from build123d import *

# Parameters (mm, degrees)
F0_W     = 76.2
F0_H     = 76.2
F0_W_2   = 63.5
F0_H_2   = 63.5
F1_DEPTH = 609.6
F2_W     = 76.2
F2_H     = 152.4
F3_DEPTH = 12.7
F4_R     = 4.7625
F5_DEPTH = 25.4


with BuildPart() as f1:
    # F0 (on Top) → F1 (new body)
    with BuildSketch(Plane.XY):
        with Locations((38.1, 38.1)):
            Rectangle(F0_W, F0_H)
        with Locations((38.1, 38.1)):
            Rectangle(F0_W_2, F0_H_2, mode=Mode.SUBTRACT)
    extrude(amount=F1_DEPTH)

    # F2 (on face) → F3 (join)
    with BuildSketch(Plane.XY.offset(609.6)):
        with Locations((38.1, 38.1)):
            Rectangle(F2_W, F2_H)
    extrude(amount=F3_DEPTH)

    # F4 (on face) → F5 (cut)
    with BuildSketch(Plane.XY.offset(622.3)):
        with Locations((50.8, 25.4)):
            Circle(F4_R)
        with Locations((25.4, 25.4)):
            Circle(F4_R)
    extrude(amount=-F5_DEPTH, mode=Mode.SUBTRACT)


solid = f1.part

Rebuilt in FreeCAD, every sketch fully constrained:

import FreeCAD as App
import Part
import Sketcher

V = App.Vector
Q = App.Units.Quantity

doc = App.newDocument("Part")
body = doc.addObject("PartDesign::Body", "Body")

# Sketch on XY plane
sketch1 = body.newObject("Sketcher::SketchObject", "Sketch")
sketch1.AttachmentSupport = (doc.getObject("XY_Plane"), [""])
sketch1.MapMode = "FlatFace"
sketch1.addGeometry([
    Part.LineSegment(V(0, 76, 0), V(0, 0, 0)),  # 0
    Part.LineSegment(V(0, 0, 0), V(76, 0, 0)),  # 1
    Part.LineSegment(V(76, 0, 0), V(76, 76, 0)),  # 2
    Part.LineSegment(V(76, 76, 0), V(0, 76, 0)),  # 3
    Part.LineSegment(V(70, 6, 0), V(6, 6, 0)),  # 4
    Part.LineSegment(V(6, 6, 0), V(6, 70, 0)),  # 5
    Part.LineSegment(V(6, 70, 0), V(70, 70, 0)),  # 6
    Part.LineSegment(V(70, 70, 0), V(70, 6, 0)),  # 7
], False)
sketch1.addConstraint([
    Sketcher.Constraint("Coincident", 0, 2, 1, 1),
    Sketcher.Constraint("Coincident", 1, 2, 2, 1),
    Sketcher.Constraint("Coincident", 2, 2, 3, 1),
    Sketcher.Constraint("Coincident", 3, 2, 0, 1),
    Sketcher.Constraint("Coincident", 4, 2, 5, 1),
    Sketcher.Constraint("Coincident", 5, 2, 6, 1),
    Sketcher.Constraint("Coincident", 6, 2, 7, 1),
    Sketcher.Constraint("Coincident", 7, 2, 4, 1),
    Sketcher.Constraint("Vertical", 0),
    Sketcher.Constraint("Horizontal", 1),
    Sketcher.Constraint("Vertical", 2),
    Sketcher.Constraint("Horizontal", 3),
    Sketcher.Constraint("Horizontal", 4),
    Sketcher.Constraint("Vertical", 5),
    Sketcher.Constraint("Horizontal", 6),
    Sketcher.Constraint("Vertical", 7),
    Sketcher.Constraint("Coincident", 0, 2, -1, 1),
    Sketcher.Constraint("Equal", 3, 0),
    Sketcher.Constraint("Equal", 6, 5),
    Sketcher.Constraint("DistanceX", 1, 1, 1, 2, Q("3 in")),
    Sketcher.Constraint("DistanceX", 4, 2, 4, 1, Q("2.5 in")),
    Sketcher.Constraint("DistanceX", -1, 1, 4, 2, Q("0.25 in")),
    Sketcher.Constraint("DistanceY", -1, 1, 4, 2, Q("0.25 in")),
])
pad1 = body.newObject("PartDesign::Pad", "Pad")
pad1.Profile = sketch1
pad1.Length = Q("24 in")

# Sketch on XY plane
sketch2 = body.newObject("Sketcher::SketchObject", "Sketch001")
sketch2.AttachmentSupport = (doc.getObject("XY_Plane"), [""])
sketch2.MapMode = "FlatFace"
sketch2.AttachmentOffset = App.Placement(V(0, 0, 24 * 25.4), App.Rotation())
sketch2.addGeometry([
    Part.LineSegment(V(0, 114, 0), V(0, -38, 0)),
    Part.LineSegment(V(0, -38, 0), V(76, -38, 0)),
    Part.LineSegment(V(76, -38, 0), V(76, 114, 0)),
    Part.LineSegment(V(76, 114, 0), V(0, 114, 0)),
], False)
sketch2.addConstraint([
    Sketcher.Constraint("Coincident", 0, 2, 1, 1),
    Sketcher.Constraint("Coincident", 1, 2, 2, 1),
    Sketcher.Constraint("Coincident", 2, 2, 3, 1),
    Sketcher.Constraint("Coincident", 3, 2, 0, 1),
    Sketcher.Constraint("Vertical", 0),
    Sketcher.Constraint("Horizontal", 1),
    Sketcher.Constraint("Vertical", 2),
    Sketcher.Constraint("Horizontal", 3),
    Sketcher.Constraint("PointOnObject", 0, 2, -2),
    Sketcher.Constraint("DistanceX", 1, 1, 1, 2, Q("3 in")),
    Sketcher.Constraint("DistanceY", 0, 2, 0, 1, Q("6 in")),
    Sketcher.Constraint("DistanceY", 0, 2, -1, 1, Q("1.5 in")),
])
pad2 = body.newObject("PartDesign::Pad", "Pad001")
pad2.Profile = sketch2
pad2.Length = Q("0.5 in")

# Sketch on XY plane
sketch3 = body.newObject("Sketcher::SketchObject", "Sketch002")
sketch3.AttachmentSupport = (doc.getObject("XY_Plane"), [""])
sketch3.MapMode = "FlatFace"
sketch3.AttachmentOffset = App.Placement(V(0, 0, 24.5 * 25.4), App.Rotation())
sketch3.addGeometry([
    Part.Circle(V(50.8, 25.4, 0), V(0, 0, 1), 4.8),
    Part.Circle(V(25.4, 25.4, 0), V(0, 0, 1), 4.8),
], False)
sketch3.addConstraint([
    Sketcher.Constraint("Equal", 0, 1),
    Sketcher.Constraint("Horizontal", 0, 3, 1, 3),
    Sketcher.Constraint("Diameter", 0, Q("0.375 in")),
    Sketcher.Constraint("DistanceX", -1, 1, 0, 3, Q("2 in")),
    Sketcher.Constraint("DistanceY", -1, 1, 0, 3, Q("1 in")),
    Sketcher.Constraint("DistanceX", -1, 1, 1, 3, Q("1 in")),
])
pocket1 = body.newObject("PartDesign::Pocket", "Pocket")
pocket1.Profile = sketch3
pocket1.Length = Q("1 in")

doc.recompute()
